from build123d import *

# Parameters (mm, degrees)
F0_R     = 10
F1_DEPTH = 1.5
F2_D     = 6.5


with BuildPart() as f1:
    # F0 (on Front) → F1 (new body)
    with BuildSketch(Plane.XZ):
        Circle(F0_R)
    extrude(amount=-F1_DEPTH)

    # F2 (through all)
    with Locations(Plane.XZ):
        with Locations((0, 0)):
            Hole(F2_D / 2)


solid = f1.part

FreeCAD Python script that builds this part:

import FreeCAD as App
import Part
import Sketcher

V = App.Vector

doc = App.newDocument("Part")
body = doc.addObject("PartDesign::Body", "Body")

# Sketch on XZ plane
sketch1 = body.newObject("Sketcher::SketchObject", "Sketch")
sketch1.AttachmentSupport = (doc.getObject("XZ_Plane"), [""])
sketch1.MapMode = "FlatFace"
sketch1.addGeometry(Part.Circle(V(0, 0, 0), V(0, 0, 1), 10), False)
sketch1.addConstraint([
    Sketcher.Constraint("Coincident", 0, 3, -1, 1),
    Sketcher.Constraint("Diameter", 0, 20.0),
])
pad1 = body.newObject("PartDesign::Pad", "Pad")
pad1.Profile = sketch1
pad1.Length = 1.5
pad1.Reversed = True

# Sketch on XZ plane
sketch2 = body.newObject("Sketcher::SketchObject", "Sketch001")
sketch2.AttachmentSupport = (doc.getObject("XZ_Plane"), [""])
sketch2.MapMode = "FlatFace"
sketch2.addGeometry(Part.Circle(V(0, 0, 0), V(0, 0, 1), 3.25), False)
sketch2.addConstraint([
    Sketcher.Constraint("Coincident", 0, 3, -1, 1),
    Sketcher.Constraint("Diameter", 0, 6.5),
])
doc.recompute()
hole = body.newObject("PartDesign::Hole", "Hole")
hole.Profile = sketch2
hole.ThreadType = "None"
hole.Diameter = 6.5
hole.DepthType = "ThroughAll"

doc.recompute()
